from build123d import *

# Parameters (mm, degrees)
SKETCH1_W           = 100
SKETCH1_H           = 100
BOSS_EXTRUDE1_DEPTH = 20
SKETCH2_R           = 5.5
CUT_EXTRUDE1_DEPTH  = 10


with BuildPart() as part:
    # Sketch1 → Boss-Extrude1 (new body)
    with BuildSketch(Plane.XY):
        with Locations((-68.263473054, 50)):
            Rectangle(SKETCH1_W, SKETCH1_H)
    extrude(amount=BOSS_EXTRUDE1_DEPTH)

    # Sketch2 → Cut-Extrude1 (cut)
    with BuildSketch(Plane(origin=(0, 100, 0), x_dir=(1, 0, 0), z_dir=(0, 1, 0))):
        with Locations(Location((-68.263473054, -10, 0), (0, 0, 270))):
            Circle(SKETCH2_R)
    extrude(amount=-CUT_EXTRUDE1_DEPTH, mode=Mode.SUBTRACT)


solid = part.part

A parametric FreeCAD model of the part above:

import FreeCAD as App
import Part
import Sketcher
Q = App.Units.Quantity


def add_polygon(sketch, points):
    """Adds a closed chain of lines whose ends are joined by coincident constraints."""
    first, n = sketch.GeometryCount, len(points)
    for a, b in zip(points, points[1:] + points[:1]):
        sketch.addGeometry(Part.LineSegment(App.Vector(*a, 0), App.Vector(*b, 0)), False)
    for i in range(n):
        sketch.addConstraint(Sketcher.Constraint("Coincident", first + i, 2, first + (i + 1) % n, 1))

doc = App.newDocument("Part")
body = doc.addObject("PartDesign::Body", "Body")

sketch1 = doc.addObject("Sketcher::SketchObject", "Sketch")
body.addObject(sketch1)
sketch1.AttachmentSupport = (doc.XY_Plane, [""])
sketch1.MapMode = "FlatFace"
add_polygon(sketch1, [(-118, 100), (-118, 0), (-18, 0), (-18, 100)])
sketch1.addConstraint(Sketcher.Constraint("Vertical", 0))
sketch1.addConstraint(Sketcher.Constraint("Horizontal", 1))
sketch1.addConstraint(Sketcher.Constraint("Vertical", 2))
sketch1.addConstraint(Sketcher.Constraint("Horizontal", 3))
sketch1.addConstraint(Sketcher.Constraint("PointOnObject", 0, 2, -1))
sketch1.addConstraint(Sketcher.Constraint("Equal", 3, 0))
sketch1.addConstraint(Sketcher.Constraint("DistanceX", 1, 1, 1, 2, Q("100 mm")))
sketch1.addConstraint(Sketcher.Constraint("DistanceX", 0, 2, -1, 1, Q("118.263473 mm")))
pad1 = doc.addObject("PartDesign::Pad", "Pad")
body.addObject(pad1)
pad1.Profile = sketch1
pad1.Length = 20

sketch2 = doc.addObject("Sketcher::SketchObject", "Sketch001")
body.addObject(sketch2)
sketch2.AttachmentSupport = (doc.XZ_Plane, [""])
sketch2.MapMode = "FlatFace"
sketch2.AttachmentOffset = App.Placement(App.Vector(0, 0, -100), App.Rotation())
sketch2.addGeometry(Part.Circle(App.Vector(-68, 10, 0), App.Vector(0, 0, 1), 6), False)
sketch2.addConstraint(Sketcher.Constraint("Diameter", 0, Q("11 mm")))
sketch2.addConstraint(Sketcher.Constraint("DistanceY", -1, 1, 0, 3, Q("10 mm")))
sketch2.addConstraint(Sketcher.Constraint("DistanceX", 0, 3, -1, 1, Q("68.263473 mm")))
pocket1 = doc.addObject("PartDesign::Pocket", "Pocket")
body.addObject(pocket1)
pocket1.Profile = sketch2
pocket1.Length = 10
pocket1.Reversed = True

doc.recompute()
